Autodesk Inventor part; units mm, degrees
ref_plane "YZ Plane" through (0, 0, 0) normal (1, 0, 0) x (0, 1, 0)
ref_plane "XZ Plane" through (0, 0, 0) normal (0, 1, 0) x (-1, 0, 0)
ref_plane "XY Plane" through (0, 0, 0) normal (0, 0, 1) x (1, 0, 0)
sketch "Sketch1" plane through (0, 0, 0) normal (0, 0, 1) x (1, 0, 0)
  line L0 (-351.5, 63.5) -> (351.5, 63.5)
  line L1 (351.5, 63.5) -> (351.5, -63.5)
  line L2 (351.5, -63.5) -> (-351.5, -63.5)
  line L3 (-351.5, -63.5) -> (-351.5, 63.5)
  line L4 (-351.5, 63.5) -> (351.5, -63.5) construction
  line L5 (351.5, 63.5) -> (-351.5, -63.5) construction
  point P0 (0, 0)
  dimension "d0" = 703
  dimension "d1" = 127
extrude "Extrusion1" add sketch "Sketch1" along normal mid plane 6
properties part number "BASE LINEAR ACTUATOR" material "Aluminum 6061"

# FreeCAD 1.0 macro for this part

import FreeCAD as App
import Part
import Sketcher

V = App.Vector

doc = App.newDocument("Part")
body = doc.addObject("PartDesign::Body", "Body")

# Sketch on XY plane
sketch1 = body.newObject("Sketcher::SketchObject", "Sketch")
sketch1.AttachmentSupport = (doc.getObject("XY_Plane"), [""])
sketch1.MapMode = "FlatFace"
sketch1.addGeometry(Part.LineSegment(V(352, 64, 0), V(-352, 64, 0)), False)
sketch1.addGeometry(Part.LineSegment(V(-352, 64, 0), V(-352, -64, 0)), False)
sketch1.addGeometry(Part.LineSegment(V(-352, -64, 0), V(352, -64, 0)), False)
sketch1.addGeometry(Part.LineSegment(V(352, -64, 0), V(352, 64, 0)), False)
sketch1.addConstraint(Sketcher.Constraint("Coincident", 0, 2, 1, 1))
sketch1.addConstraint(Sketcher.Constraint("Coincident", 1, 2, 2, 1))
sketch1.addConstraint(Sketcher.Constraint("Coincident", 2, 2, 3, 1))
sketch1.addConstraint(Sketcher.Constraint("Coincident", 3, 2, 0, 1))
sketch1.addConstraint(Sketcher.Constraint("Horizontal", 0))
sketch1.addConstraint(Sketcher.Constraint("Vertical", 1))
sketch1.addConstraint(Sketcher.Constraint("Horizontal", 2))
sketch1.addConstraint(Sketcher.Constraint("Vertical", 3))
sketch1.addConstraint(Sketcher.Constraint("Symmetric", 0, 2, 2, 2, -1, 1))
sketch1.addConstraint(Sketcher.Constraint("DistanceX", 0, 2, 0, 1, 703.0))
sketch1.addConstraint(Sketcher.Constraint("DistanceY", 1, 2, 1, 1, 127.0))
pad1 = body.newObject("PartDesign::Pad", "Pad")
pad1.Profile = sketch1
pad1.Length = 6
pad1.Midplane = True

doc.recompute()
